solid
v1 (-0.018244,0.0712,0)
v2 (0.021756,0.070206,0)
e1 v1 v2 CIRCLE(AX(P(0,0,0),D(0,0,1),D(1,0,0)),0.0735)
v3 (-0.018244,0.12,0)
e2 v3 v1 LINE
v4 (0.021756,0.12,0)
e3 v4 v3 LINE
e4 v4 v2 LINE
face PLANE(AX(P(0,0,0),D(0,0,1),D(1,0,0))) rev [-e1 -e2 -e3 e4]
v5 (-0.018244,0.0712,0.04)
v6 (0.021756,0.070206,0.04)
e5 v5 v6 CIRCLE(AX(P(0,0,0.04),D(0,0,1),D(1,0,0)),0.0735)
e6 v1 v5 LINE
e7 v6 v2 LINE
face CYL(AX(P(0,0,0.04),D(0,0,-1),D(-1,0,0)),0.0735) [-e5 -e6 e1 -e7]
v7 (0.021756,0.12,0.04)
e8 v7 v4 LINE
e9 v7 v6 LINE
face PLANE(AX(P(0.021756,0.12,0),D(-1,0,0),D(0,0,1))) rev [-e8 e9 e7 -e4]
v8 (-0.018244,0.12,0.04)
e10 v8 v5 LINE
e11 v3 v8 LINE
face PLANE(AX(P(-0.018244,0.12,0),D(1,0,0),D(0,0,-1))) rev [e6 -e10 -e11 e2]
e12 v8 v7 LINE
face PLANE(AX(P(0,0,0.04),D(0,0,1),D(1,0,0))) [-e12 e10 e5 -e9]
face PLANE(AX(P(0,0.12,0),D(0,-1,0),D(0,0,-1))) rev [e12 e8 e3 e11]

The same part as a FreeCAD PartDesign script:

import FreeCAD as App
import Part
import Sketcher
from FreeCAD import Vector


def add_polygon(sketch, points):
    """Adds a closed chain of lines whose ends are joined by coincident constraints."""
    first, n = sketch.GeometryCount, len(points)
    for a, b in zip(points, points[1:] + points[:1]):
        sketch.addGeometry(Part.LineSegment(App.Vector(*a, 0), App.Vector(*b, 0)), False)
    for i in range(n):
        sketch.addConstraint(Sketcher.Constraint("Coincident", first + i, 2, first + (i + 1) % n, 1))

doc = App.newDocument("Part")
body = doc.addObject("PartDesign::Body", "Body")

sketch1 = body.newObject("Sketcher::SketchObject", "Sketch")
sketch1.AttachmentSupport = (doc.getObject("XY_Plane"), [""])
sketch1.MapMode = "FlatFace"
sketch1.addGeometry(Part.Circle(Vector(0, 0, 0), Vector(0, 0, 1), 0.07), False)
sketch1.addConstraint([
    Sketcher.Constraint("Coincident", 0, 3, -1, 1),
    Sketcher.Constraint("Diameter", 0, 0.147),
])
pad1 = body.newObject("PartDesign::Pad", "Pad")
pad1.Profile = sketch1
pad1.Length = 0.04

sketch2 = body.newObject("Sketcher::SketchObject", "Sketch001")
sketch2.AttachmentSupport = (doc.getObject("XZ_Plane"), [""])
sketch2.MapMode = "FlatFace"
add_polygon(sketch2, [(-0.018, 0), (-0.018, 0.04), (0.022, 0.04), (0.022, 0)])
sketch2.addConstraint([
    Sketcher.Constraint("Vertical", 0),
    Sketcher.Constraint("Horizontal", 1),
    Sketcher.Constraint("Vertical", 2),
    Sketcher.Constraint("Horizontal", 3),
    Sketcher.Constraint("PointOnObject", 2, 2, -1),
    Sketcher.Constraint("Equal", 3, 0),
    Sketcher.Constraint("DistanceX", 1, 1, 1, 2, 0.04),
    Sketcher.Constraint("DistanceX", 0, 2, -1, 1, 0.018244),
])
pad2 = body.newObject("PartDesign::Pad", "Pad001")
pad2.Profile = sketch2
pad2.Length = 0.12
pad2.Reversed = True

doc.recompute()
